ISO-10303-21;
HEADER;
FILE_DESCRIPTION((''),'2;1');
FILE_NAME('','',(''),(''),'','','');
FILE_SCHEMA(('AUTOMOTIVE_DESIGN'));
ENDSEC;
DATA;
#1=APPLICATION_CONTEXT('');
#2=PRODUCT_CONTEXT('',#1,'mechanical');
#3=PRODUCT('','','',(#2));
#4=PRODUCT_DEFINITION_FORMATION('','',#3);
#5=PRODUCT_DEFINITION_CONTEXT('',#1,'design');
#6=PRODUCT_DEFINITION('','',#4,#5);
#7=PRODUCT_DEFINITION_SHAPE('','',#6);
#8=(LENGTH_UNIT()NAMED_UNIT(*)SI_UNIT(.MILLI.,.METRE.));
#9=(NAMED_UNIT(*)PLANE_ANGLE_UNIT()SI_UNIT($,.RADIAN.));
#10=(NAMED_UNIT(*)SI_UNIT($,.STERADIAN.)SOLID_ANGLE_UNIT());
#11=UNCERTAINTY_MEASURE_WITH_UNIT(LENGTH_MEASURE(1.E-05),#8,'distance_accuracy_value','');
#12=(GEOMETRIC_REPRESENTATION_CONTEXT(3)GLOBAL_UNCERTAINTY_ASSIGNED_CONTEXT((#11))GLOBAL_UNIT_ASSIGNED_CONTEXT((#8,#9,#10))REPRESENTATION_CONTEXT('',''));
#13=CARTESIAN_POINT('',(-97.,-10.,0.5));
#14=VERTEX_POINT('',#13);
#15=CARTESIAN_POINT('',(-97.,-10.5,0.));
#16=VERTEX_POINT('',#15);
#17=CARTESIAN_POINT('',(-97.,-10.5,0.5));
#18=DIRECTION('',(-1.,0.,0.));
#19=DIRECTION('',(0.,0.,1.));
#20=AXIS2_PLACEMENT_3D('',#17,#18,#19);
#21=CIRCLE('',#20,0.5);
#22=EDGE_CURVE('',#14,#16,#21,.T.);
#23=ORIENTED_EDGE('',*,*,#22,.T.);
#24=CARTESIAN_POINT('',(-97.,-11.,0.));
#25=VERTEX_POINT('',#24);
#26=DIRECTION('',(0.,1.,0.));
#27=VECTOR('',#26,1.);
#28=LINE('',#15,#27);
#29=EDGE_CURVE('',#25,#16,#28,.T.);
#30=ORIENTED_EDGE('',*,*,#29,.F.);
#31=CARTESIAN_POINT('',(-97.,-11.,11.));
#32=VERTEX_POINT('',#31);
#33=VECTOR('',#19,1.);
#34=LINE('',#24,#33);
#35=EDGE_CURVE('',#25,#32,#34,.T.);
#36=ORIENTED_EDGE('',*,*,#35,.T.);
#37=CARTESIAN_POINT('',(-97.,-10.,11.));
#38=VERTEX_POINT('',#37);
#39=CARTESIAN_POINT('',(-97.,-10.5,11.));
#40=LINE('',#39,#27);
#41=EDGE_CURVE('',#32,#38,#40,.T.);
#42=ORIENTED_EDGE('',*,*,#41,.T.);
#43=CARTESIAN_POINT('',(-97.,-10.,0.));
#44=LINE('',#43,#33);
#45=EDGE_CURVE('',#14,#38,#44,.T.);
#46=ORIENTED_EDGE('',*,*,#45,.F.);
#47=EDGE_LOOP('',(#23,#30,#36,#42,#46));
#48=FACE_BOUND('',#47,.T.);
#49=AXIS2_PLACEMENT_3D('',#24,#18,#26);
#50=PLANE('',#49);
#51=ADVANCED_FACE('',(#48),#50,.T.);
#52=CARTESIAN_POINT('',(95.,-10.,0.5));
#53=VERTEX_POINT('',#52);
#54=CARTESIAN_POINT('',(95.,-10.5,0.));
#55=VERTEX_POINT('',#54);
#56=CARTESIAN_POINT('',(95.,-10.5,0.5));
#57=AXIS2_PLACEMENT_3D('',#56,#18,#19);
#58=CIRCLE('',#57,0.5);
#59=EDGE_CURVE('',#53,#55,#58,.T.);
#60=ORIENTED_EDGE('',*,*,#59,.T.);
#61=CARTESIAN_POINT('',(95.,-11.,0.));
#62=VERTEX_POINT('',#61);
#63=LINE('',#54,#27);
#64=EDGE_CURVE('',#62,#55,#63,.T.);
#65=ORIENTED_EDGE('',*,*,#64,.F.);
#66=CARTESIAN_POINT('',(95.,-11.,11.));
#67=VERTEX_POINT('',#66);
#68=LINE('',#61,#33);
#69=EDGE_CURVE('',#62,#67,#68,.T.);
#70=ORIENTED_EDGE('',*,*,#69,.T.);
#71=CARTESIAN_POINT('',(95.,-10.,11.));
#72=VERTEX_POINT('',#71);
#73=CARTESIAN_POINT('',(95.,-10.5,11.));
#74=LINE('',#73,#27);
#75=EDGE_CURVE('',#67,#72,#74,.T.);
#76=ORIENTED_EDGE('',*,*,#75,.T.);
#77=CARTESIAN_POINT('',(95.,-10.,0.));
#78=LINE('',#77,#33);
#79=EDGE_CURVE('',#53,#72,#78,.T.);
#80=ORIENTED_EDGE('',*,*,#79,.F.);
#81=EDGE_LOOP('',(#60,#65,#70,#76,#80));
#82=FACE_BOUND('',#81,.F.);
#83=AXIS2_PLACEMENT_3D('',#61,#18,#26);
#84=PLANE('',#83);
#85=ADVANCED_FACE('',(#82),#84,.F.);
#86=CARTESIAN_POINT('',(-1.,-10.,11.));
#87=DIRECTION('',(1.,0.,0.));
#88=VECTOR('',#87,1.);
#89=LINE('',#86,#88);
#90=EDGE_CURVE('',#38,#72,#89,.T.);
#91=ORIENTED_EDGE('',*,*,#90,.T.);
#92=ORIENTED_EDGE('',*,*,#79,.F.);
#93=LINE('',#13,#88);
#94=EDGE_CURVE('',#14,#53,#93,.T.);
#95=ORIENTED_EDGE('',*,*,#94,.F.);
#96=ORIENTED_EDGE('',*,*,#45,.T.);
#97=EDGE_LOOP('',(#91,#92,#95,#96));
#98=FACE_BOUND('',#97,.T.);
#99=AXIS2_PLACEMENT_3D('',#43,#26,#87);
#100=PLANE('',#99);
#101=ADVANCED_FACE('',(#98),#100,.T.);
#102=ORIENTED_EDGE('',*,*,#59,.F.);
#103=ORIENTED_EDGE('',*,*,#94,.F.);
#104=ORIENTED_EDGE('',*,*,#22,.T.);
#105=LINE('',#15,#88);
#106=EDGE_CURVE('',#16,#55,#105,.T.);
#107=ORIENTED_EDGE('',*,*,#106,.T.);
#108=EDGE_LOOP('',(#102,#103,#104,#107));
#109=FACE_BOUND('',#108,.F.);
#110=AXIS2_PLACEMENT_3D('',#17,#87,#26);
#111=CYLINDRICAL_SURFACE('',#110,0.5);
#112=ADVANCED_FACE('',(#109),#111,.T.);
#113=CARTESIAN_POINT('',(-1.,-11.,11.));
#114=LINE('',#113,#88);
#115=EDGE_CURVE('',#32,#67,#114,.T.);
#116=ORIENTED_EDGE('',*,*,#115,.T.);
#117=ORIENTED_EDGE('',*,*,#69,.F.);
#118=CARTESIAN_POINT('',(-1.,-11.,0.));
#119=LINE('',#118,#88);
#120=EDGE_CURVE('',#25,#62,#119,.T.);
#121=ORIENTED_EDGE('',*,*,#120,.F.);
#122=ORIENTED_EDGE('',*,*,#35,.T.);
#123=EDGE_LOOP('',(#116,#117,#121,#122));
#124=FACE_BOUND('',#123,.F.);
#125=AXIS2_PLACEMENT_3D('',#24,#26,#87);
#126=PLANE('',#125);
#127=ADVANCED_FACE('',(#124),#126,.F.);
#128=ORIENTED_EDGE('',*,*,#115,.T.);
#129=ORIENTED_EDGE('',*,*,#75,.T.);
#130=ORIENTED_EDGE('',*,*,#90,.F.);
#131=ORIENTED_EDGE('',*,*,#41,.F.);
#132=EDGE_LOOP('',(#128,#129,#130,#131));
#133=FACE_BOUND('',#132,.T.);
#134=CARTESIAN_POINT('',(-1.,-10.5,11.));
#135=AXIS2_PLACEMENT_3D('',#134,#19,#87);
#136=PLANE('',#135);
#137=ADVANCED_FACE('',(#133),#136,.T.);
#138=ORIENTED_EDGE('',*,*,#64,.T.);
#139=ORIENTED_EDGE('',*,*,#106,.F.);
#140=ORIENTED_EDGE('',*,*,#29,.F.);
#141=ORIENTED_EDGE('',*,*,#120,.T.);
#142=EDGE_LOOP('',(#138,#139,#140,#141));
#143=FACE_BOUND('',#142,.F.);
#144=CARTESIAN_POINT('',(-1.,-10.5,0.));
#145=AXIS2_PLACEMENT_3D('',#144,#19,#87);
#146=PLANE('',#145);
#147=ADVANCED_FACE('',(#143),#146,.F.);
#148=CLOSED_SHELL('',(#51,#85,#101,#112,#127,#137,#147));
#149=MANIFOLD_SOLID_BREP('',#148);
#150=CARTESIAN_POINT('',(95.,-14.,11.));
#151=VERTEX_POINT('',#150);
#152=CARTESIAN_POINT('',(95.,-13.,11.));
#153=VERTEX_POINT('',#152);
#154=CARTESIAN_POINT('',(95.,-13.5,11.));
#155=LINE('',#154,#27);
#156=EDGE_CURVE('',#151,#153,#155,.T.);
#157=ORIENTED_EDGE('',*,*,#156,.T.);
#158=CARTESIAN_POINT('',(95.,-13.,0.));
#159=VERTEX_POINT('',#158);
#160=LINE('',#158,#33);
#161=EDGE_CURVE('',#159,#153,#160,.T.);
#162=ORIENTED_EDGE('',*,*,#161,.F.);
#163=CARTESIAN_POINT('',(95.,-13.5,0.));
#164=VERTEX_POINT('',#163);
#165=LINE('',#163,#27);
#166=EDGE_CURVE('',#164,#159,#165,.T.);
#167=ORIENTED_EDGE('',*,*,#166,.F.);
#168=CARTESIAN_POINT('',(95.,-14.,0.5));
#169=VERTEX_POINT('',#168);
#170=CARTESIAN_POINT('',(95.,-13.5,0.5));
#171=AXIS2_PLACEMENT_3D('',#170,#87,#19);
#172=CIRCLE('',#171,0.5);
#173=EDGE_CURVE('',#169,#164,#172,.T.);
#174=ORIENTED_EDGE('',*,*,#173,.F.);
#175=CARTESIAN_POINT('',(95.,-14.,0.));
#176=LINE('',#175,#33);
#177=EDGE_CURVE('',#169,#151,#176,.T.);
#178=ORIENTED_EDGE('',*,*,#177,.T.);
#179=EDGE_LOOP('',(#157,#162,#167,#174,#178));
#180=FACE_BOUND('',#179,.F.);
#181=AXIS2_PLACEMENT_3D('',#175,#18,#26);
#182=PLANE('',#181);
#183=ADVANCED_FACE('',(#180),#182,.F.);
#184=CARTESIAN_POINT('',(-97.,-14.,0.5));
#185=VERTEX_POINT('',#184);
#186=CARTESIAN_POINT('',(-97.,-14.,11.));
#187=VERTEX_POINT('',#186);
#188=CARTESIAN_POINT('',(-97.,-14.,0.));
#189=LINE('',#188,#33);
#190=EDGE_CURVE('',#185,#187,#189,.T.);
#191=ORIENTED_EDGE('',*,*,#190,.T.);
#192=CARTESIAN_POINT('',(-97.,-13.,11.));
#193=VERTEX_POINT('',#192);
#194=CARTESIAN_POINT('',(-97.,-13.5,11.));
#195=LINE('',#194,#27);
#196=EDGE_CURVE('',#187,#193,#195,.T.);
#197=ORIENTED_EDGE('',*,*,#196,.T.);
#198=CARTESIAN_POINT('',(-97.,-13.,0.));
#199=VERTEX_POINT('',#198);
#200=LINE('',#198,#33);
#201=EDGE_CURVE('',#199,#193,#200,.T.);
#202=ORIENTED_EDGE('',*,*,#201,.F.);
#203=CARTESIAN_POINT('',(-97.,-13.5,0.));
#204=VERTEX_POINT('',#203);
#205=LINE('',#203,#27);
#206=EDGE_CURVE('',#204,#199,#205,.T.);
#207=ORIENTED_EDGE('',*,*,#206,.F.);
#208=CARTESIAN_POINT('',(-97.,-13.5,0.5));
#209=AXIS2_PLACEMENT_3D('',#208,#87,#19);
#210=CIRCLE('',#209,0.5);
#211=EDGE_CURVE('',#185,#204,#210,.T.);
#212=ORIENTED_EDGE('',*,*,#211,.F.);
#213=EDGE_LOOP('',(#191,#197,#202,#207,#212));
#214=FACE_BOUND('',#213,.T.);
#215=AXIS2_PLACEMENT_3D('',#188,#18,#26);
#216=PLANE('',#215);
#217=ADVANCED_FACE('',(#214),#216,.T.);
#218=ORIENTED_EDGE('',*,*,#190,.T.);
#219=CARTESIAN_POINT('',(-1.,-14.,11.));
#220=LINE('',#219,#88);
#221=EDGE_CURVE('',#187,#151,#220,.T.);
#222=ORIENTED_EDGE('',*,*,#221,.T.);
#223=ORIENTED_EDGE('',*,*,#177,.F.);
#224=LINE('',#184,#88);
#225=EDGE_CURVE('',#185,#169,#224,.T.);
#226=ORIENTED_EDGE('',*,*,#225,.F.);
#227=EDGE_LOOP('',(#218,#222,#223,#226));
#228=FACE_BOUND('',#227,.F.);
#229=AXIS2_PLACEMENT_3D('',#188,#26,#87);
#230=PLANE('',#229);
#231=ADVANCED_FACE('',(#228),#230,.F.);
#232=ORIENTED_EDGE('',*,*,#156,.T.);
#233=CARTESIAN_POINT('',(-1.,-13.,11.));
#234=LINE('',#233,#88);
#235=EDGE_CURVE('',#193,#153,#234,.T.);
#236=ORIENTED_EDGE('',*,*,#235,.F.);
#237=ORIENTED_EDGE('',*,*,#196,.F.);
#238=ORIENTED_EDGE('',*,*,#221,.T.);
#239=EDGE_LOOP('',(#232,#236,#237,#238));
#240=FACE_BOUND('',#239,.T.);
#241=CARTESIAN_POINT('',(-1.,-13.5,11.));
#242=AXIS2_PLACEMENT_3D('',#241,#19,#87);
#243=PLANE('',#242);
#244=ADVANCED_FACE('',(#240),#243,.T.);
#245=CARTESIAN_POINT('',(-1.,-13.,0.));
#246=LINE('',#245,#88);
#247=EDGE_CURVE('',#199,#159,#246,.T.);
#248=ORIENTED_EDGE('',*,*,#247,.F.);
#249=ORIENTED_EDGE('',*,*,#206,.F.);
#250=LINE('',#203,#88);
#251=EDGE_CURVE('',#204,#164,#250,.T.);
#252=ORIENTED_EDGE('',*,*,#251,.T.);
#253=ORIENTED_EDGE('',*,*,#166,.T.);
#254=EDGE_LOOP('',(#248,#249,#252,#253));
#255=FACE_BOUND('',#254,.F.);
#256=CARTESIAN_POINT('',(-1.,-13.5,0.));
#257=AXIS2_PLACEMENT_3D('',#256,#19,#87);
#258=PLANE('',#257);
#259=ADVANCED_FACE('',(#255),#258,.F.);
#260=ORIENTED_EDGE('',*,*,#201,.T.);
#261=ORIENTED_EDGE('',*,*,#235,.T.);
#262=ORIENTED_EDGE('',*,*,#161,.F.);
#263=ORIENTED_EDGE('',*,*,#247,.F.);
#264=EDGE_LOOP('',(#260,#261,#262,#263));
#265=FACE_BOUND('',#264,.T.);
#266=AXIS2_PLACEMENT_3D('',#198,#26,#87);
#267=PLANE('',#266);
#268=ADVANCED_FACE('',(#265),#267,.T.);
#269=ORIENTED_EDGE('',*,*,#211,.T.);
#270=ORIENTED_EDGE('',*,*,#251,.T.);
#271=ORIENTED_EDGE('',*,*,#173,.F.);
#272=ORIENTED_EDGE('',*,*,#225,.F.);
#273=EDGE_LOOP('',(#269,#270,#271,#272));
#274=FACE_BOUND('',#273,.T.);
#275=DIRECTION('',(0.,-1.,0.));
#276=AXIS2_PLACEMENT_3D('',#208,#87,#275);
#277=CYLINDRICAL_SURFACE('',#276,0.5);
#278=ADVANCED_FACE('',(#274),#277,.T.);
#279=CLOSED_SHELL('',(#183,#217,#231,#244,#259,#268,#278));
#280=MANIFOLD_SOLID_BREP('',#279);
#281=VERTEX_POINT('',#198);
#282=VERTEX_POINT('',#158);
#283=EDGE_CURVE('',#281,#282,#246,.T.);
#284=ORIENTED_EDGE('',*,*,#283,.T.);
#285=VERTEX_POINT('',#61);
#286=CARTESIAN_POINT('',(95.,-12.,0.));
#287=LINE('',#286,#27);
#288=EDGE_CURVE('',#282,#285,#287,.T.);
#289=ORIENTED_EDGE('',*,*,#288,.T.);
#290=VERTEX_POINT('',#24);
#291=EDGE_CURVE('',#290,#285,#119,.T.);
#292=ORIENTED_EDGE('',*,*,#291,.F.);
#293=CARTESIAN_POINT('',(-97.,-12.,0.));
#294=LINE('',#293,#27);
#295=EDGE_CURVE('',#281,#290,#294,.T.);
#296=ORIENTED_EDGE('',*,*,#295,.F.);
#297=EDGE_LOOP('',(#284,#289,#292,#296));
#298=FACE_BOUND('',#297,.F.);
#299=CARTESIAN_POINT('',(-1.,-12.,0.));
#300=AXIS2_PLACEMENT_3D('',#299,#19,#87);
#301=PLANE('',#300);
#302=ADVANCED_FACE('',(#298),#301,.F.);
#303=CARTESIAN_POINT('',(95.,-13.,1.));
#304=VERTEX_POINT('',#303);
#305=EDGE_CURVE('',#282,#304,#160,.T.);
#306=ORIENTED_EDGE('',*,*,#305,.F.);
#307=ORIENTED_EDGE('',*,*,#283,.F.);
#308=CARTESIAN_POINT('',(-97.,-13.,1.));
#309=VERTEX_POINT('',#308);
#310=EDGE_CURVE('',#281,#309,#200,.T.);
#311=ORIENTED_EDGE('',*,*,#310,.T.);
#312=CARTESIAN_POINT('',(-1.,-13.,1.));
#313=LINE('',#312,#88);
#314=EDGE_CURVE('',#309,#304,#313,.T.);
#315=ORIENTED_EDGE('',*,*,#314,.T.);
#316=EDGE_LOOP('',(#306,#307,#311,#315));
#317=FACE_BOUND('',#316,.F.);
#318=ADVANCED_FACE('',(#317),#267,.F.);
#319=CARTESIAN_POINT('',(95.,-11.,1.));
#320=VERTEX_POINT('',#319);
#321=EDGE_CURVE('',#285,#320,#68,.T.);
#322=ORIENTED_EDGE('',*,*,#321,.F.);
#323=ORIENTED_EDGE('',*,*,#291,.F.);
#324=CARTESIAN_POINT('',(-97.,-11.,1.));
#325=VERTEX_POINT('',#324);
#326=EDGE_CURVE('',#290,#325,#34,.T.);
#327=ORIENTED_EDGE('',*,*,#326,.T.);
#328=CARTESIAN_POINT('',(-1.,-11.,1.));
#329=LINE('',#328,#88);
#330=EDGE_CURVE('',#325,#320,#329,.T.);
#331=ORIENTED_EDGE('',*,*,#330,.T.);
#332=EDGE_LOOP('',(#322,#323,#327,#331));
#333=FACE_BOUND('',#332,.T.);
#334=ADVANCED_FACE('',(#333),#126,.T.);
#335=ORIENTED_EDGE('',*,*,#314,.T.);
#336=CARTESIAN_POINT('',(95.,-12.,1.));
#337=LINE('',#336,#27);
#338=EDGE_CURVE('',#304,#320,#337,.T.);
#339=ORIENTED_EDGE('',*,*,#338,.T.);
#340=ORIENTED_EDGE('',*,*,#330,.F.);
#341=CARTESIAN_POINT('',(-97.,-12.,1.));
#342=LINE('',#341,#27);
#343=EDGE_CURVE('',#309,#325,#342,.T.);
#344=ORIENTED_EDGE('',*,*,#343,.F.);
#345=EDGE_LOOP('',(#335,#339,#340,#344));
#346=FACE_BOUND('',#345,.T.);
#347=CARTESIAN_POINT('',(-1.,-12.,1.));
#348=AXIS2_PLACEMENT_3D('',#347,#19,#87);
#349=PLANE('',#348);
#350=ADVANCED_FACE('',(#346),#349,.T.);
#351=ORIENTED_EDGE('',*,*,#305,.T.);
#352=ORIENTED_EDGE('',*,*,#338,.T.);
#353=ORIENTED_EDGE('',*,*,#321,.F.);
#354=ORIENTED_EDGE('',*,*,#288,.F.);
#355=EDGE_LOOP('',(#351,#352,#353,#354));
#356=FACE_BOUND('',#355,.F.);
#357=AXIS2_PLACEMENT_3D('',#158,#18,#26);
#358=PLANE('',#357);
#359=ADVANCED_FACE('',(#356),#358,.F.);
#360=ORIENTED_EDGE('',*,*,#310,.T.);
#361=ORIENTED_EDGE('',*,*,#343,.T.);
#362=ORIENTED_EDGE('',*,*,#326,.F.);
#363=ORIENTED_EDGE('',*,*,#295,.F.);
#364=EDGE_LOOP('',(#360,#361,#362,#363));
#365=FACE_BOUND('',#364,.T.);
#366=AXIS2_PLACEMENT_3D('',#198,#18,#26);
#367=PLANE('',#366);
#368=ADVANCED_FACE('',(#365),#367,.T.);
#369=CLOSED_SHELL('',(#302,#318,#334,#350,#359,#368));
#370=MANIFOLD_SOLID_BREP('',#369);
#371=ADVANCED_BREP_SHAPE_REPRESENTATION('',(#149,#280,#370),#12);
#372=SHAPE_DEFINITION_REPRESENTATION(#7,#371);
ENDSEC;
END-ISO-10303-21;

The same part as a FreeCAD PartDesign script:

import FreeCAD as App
import Part
import Sketcher
from FreeCAD import Vector


def edges_at(feature, points):
    """Names of the edges that pass closest to the given points."""
    edges = feature.Shape.Edges
    near = lambda p: min(range(len(edges)), key=lambda i: edges[i].distToShape(Part.Vertex(*p))[0])
    return sorted({f"Edge{near(p) + 1}" for p in points})


def add_polygon(sketch, points):
    """Adds a closed chain of lines whose ends are joined by coincident constraints."""
    first, n = sketch.GeometryCount, len(points)
    for a, b in zip(points, points[1:] + points[:1]):
        sketch.addGeometry(Part.LineSegment(App.Vector(*a, 0), App.Vector(*b, 0)), False)
    for i in range(n):
        sketch.addConstraint(Sketcher.Constraint("Coincident", first + i, 2, first + (i + 1) % n, 1))

doc = App.newDocument("Part")
body = doc.addObject("PartDesign::Body", "Body")
body.AllowCompound = True

# Sketch on XY plane
sketch1 = body.newObject("Sketcher::SketchObject", "Sketch")
sketch1.AttachmentSupport = (doc.getObject("XY_Plane"), [""])
sketch1.MapMode = "FlatFace"
add_polygon(sketch1, [(-97, -10), (-97, -11), (95, -11), (95, -10)])  # lines 0-3
add_polygon(sketch1, [(-97, -13), (-97, -14), (95, -14), (95, -13)])  # lines 4-7
sketch1.addConstraint([
    Sketcher.Constraint("Vertical", 0),
    Sketcher.Constraint("Horizontal", 1),
    Sketcher.Constraint("Vertical", 2),
    Sketcher.Constraint("Horizontal", 3),
    Sketcher.Constraint("Vertical", 4),
    Sketcher.Constraint("Horizontal", 5),
    Sketcher.Constraint("Vertical", 6),
    Sketcher.Constraint("Horizontal", 7),
    Sketcher.Constraint("Vertical", 3, 2, 4, 2),
    Sketcher.Constraint("Vertical", 2, 2, 5, 2),
    Sketcher.Constraint("Equal", 2, 4),
    Sketcher.Constraint("DistanceX", 1, 1, 1, 2, 192.0),
    Sketcher.Constraint("DistanceY", 0, 2, 0, 1, 1.0),
    Sketcher.Constraint("DistanceX", 0, 2, -1, 1, 97.0),
    Sketcher.Constraint("DistanceY", 0, 2, -1, 1, 11.0),
    Sketcher.Constraint("DistanceY", 4, 2, -1, 1, 14.0),
])
pad1 = body.newObject("PartDesign::Pad", "Pad")
pad1.Profile = sketch1
pad1.Length = 11
doc.recompute()

fillet = body.newObject("PartDesign::Fillet", "Fillet")
fillet.Base = (pad1, edges_at(pad1, [(-1, -14, 0), (-1, -10, 0)]))
fillet.Radius = 0.5
body2 = doc.addObject("PartDesign::Body", "Body001")

# Sketch on XY plane
sketch2 = body2.newObject("Sketcher::SketchObject", "Sketch001")
sketch2.AttachmentSupport = (doc.getObject("XY_Plane001"), [""])
sketch2.MapMode = "FlatFace"
add_polygon(sketch2, [(-97, -11), (-97, -13), (95, -13), (95, -11)])  # lines 0-3
sketch2.addConstraint([
    Sketcher.Constraint("Vertical", 0),
    Sketcher.Constraint("Horizontal", 1),
    Sketcher.Constraint("Vertical", 2),
    Sketcher.Constraint("Horizontal", 3),
    Sketcher.Constraint("DistanceX", 1, 1, 1, 2, 192.0),
    Sketcher.Constraint("DistanceY", 0, 2, 0, 1, 2.0),
    Sketcher.Constraint("DistanceX", 0, 2, -1, 1, 97.0),
    Sketcher.Constraint("DistanceY", 0, 2, -1, 1, 13.0),
])
pad2 = body2.newObject("PartDesign::Pad", "Pad001")
pad2.Profile = sketch2
pad2.Length = 1

doc.recompute()
